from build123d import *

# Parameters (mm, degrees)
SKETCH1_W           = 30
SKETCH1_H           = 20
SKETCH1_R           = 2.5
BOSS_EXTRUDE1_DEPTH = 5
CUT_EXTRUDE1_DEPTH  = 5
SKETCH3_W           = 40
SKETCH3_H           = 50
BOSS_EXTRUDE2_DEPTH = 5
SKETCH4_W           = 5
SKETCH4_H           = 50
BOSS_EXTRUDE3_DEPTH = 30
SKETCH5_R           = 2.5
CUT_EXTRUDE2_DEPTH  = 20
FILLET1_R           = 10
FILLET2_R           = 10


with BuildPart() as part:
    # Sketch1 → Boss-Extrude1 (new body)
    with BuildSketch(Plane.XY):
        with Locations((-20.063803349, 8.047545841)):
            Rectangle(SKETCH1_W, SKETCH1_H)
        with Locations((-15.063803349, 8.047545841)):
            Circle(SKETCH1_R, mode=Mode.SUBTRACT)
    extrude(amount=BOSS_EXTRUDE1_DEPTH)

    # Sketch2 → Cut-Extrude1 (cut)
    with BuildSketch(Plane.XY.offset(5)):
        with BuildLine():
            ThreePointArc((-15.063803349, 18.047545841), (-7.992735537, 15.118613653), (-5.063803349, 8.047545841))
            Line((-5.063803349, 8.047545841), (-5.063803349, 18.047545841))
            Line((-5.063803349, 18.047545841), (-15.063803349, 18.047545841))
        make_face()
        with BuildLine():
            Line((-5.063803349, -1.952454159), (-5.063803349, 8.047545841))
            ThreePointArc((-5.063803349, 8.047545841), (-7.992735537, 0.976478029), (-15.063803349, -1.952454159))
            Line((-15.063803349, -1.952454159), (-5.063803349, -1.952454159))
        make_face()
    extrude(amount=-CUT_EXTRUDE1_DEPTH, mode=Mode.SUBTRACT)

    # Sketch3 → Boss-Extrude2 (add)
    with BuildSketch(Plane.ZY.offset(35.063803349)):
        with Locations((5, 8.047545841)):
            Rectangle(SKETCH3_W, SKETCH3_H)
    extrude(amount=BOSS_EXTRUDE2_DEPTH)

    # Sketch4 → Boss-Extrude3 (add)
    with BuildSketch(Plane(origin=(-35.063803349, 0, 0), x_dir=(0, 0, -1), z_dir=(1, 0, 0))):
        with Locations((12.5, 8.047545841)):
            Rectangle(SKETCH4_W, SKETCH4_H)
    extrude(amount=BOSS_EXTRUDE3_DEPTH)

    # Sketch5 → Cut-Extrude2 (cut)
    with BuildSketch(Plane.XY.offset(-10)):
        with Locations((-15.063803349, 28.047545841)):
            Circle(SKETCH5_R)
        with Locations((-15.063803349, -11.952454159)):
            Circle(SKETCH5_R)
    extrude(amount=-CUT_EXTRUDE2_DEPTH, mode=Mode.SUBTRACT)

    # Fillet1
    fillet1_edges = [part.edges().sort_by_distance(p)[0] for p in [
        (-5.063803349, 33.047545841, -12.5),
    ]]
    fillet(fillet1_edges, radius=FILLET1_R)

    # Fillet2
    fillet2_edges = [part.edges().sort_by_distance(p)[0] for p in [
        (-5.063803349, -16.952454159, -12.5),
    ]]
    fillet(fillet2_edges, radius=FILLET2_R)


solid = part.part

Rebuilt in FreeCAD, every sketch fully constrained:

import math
import FreeCAD as App
import Part
import Sketcher
Q = App.Units.Quantity


def edges_at(feature, points):
    """Names of the edges that pass closest to the given points."""
    edges = feature.Shape.Edges
    near = lambda p: min(range(len(edges)), key=lambda i: edges[i].distToShape(Part.Vertex(*p))[0])
    return sorted({f"Edge{near(p) + 1}" for p in points})


def add_polygon(sketch, points):
    """Adds a closed chain of lines whose ends are joined by coincident constraints."""
    first, n = sketch.GeometryCount, len(points)
    for a, b in zip(points, points[1:] + points[:1]):
        sketch.addGeometry(Part.LineSegment(App.Vector(*a, 0), App.Vector(*b, 0)), False)
    for i in range(n):
        sketch.addConstraint(Sketcher.Constraint("Coincident", first + i, 2, first + (i + 1) % n, 1))

doc = App.newDocument("Part")
body = doc.addObject("PartDesign::Body", "Body")

# Sketch on XY plane
sketch1 = body.newObject("Sketcher::SketchObject", "Sketch")
sketch1.AttachmentSupport = (doc.getObject("XY_Plane"), [""])
sketch1.MapMode = "FlatFace"
add_polygon(sketch1, [(-35.1, 18), (-35.1, -2), (-5.1, -2), (-5.1, 18)])  # lines 0-3
sketch1.addGeometry(Part.Circle(App.Vector(-15.1, 8, 0), App.Vector(0, 0, 1), 2.5), False)  # 4
sketch1.addConstraint(Sketcher.Constraint("Vertical", 0))
sketch1.addConstraint(Sketcher.Constraint("Horizontal", 1))
sketch1.addConstraint(Sketcher.Constraint("Vertical", 2))
sketch1.addConstraint(Sketcher.Constraint("Horizontal", 3))
sketch1.addConstraint(Sketcher.Constraint("Diameter", 4, Q("5 mm")))
sketch1.addConstraint(Sketcher.Constraint("DistanceX", 1, 1, 1, 2, Q("30 mm")))
sketch1.addConstraint(Sketcher.Constraint("DistanceY", 0, 2, 0, 1, Q("20 mm")))
sketch1.addConstraint(Sketcher.Constraint("DistanceX", 0, 2, 4, 3, Q("20 mm")))
sketch1.addConstraint(Sketcher.Constraint("DistanceY", 0, 2, 4, 3, Q("10 mm")))
sketch1.addConstraint(Sketcher.Constraint("DistanceX", 4, 3, -1, 1, Q("15.063803 mm")))
sketch1.addConstraint(Sketcher.Constraint("DistanceY", -1, 1, 4, 3, Q("8.047546 mm")))
pad1 = body.newObject("PartDesign::Pad", "Pad")
pad1.Profile = sketch1
pad1.Length = 5

# Sketch on XY plane
sketch2 = body.newObject("Sketcher::SketchObject", "Sketch001")
sketch2.AttachmentSupport = (doc.getObject("XY_Plane"), [""])
sketch2.MapMode = "FlatFace"
sketch2.AttachmentOffset = App.Placement(App.Vector(0, 0, 5), App.Rotation())
sketch2.addGeometry(Part.ArcOfCircle(Part.Circle(App.Vector(-15, 8, 0), App.Vector(0, 0, 1), 10), math.radians(0), math.radians(90)), False)
sketch2.addGeometry(Part.LineSegment(App.Vector(-5, 8, 0), App.Vector(-5, 18, 0)), False)
sketch2.addGeometry(Part.LineSegment(App.Vector(-5, 18, 0), App.Vector(-15, 18, 0)), False)
sketch2.addGeometry(Part.LineSegment(App.Vector(-5, -2, 0), App.Vector(-5, 8, 0)), False)
sketch2.addGeometry(Part.ArcOfCircle(Part.Circle(App.Vector(-15, 8, 0), App.Vector(0, 0, 1), 10), math.radians(-90), math.radians(0)), False)
sketch2.addGeometry(Part.LineSegment(App.Vector(-15, -2, 0), App.Vector(-5, -2, 0)), False)
sketch2.addConstraint(Sketcher.Constraint("Tangent", 0, 1, 1, 1))
sketch2.addConstraint(Sketcher.Constraint("Coincident", 1, 2, 2, 1))
sketch2.addConstraint(Sketcher.Constraint("Tangent", 2, 2, 0, 2))
sketch2.addConstraint(Sketcher.Constraint("Tangent", 3, 2, 4, 2))
sketch2.addConstraint(Sketcher.Constraint("Tangent", 4, 1, 5, 1))
sketch2.addConstraint(Sketcher.Constraint("Coincident", 5, 2, 3, 1))
sketch2.addConstraint(Sketcher.Constraint("Vertical", 1))
sketch2.addConstraint(Sketcher.Constraint("Horizontal", 2))
sketch2.addConstraint(Sketcher.Constraint("Vertical", 3))
sketch2.addConstraint(Sketcher.Constraint("Horizontal", 5))
sketch2.addConstraint(Sketcher.Constraint("Coincident", 4, 3, 0, 3))
sketch2.addConstraint(Sketcher.Constraint("Equal", 0, 4))
sketch2.addConstraint(Sketcher.Constraint("Radius", 0, Q("10 mm")))
sketch2.addConstraint(Sketcher.Constraint("DistanceX", 0, 3, -1, 1, Q("15.063803 mm")))
sketch2.addConstraint(Sketcher.Constraint("DistanceY", -1, 1, 0, 3, Q("8.047546 mm")))
pocket1 = body.newObject("PartDesign::Pocket", "Pocket")
pocket1.Profile = sketch2
pocket1.Length = 5

# Sketch on YZ plane
sketch3 = body.newObject("Sketcher::SketchObject", "Sketch002")
sketch3.AttachmentSupport = (doc.getObject("YZ_Plane"), [""])
sketch3.MapMode = "FlatFace"
sketch3.AttachmentOffset = App.Placement(App.Vector(0, 0, -35.063803), App.Rotation())
add_polygon(sketch3, [(33, -15), (-17, -15), (-17, 25), (33, 25)])  # lines 0-3
sketch3.addConstraint(Sketcher.Constraint("Horizontal", 0))
sketch3.addConstraint(Sketcher.Constraint("Vertical", 1))
sketch3.addConstraint(Sketcher.Constraint("Horizontal", 2))
sketch3.addConstraint(Sketcher.Constraint("Vertical", 3))
sketch3.addConstraint(Sketcher.Constraint("DistanceX", 0, 2, 0, 1, Q("50 mm")))
sketch3.addConstraint(Sketcher.Constraint("DistanceY", 1, 1, 1, 2, Q("40 mm")))
sketch3.addConstraint(Sketcher.Constraint("DistanceY", 0, 2, -1, 1, Q("15 mm")))
sketch3.addConstraint(Sketcher.Constraint("DistanceX", 0, 2, -1, 1, Q("16.952454 mm")))
pad2 = body.newObject("PartDesign::Pad", "Pad001")
pad2.Profile = sketch3
pad2.Length = 5
pad2.Reversed = True

# Sketch on YZ plane
sketch4 = body.newObject("Sketcher::SketchObject", "Sketch003")
sketch4.AttachmentSupport = (doc.getObject("YZ_Plane"), [""])
sketch4.MapMode = "FlatFace"
sketch4.AttachmentOffset = App.Placement(App.Vector(0, 0, -35.063803), App.Rotation())
add_polygon(sketch4, [(33, -10), (-17, -10), (-17, -15), (33, -15)])  # lines 0-3
sketch4.addConstraint(Sketcher.Constraint("Horizontal", 0))
sketch4.addConstraint(Sketcher.Constraint("Vertical", 1))
sketch4.addConstraint(Sketcher.Constraint("Horizontal", 2))
sketch4.addConstraint(Sketcher.Constraint("Vertical", 3))
sketch4.addConstraint(Sketcher.Constraint("DistanceX", 0, 2, 0, 1, Q("50 mm")))
sketch4.addConstraint(Sketcher.Constraint("DistanceY", 1, 2, 1, 1, Q("5 mm")))
sketch4.addConstraint(Sketcher.Constraint("DistanceY", 0, 2, -1, 1, Q("10 mm")))
sketch4.addConstraint(Sketcher.Constraint("DistanceX", 0, 2, -1, 1, Q("16.952454 mm")))
pad3 = body.newObject("PartDesign::Pad", "Pad002")
pad3.Profile = sketch4
pad3.Length = 30

# Sketch on XY plane
sketch5 = body.newObject("Sketcher::SketchObject", "Sketch004")
sketch5.AttachmentSupport = (doc.getObject("XY_Plane"), [""])
sketch5.MapMode = "FlatFace"
sketch5.AttachmentOffset = App.Placement(App.Vector(0, 0, -10), App.Rotation())
sketch5.addGeometry(Part.Circle(App.Vector(-15.1, 28, 0), App.Vector(0, 0, 1), 2.5), False)
sketch5.addGeometry(Part.Circle(App.Vector(-15.1, -12, 0), App.Vector(0, 0, 1), 2.5), False)
sketch5.addConstraint(Sketcher.Constraint("Equal", 0, 1))
sketch5.addConstraint(Sketcher.Constraint("Vertical", 0, 3, 1, 3))
sketch5.addConstraint(Sketcher.Constraint("Diameter", 0, Q("5 mm")))
sketch5.addConstraint(Sketcher.Constraint("DistanceY", 1, 3, 0, 3, Q("40 mm")))
sketch5.addConstraint(Sketcher.Constraint("DistanceX", 0, 3, -1, 1, Q("15.063803 mm")))
sketch5.addConstraint(Sketcher.Constraint("DistanceY", -1, 1, 0, 3, Q("28.047546 mm")))
pocket2 = body.newObject("PartDesign::Pocket", "Pocket001")
pocket2.Profile = sketch5
pocket2.Length = 20
doc.recompute()

fillet = body.newObject("PartDesign::Fillet", "Fillet")
fillet.Base = (pocket2, edges_at(pocket2, [(-5.064, 33.048, -12.5)]))
fillet.Radius = 10
doc.recompute()

fillet2 = body.newObject("PartDesign::Fillet", "Fillet001")
fillet2.Base = (fillet, edges_at(fillet, [(-5.064, -16.952, -12.5)]))
fillet2.Radius = 10

doc.recompute()
